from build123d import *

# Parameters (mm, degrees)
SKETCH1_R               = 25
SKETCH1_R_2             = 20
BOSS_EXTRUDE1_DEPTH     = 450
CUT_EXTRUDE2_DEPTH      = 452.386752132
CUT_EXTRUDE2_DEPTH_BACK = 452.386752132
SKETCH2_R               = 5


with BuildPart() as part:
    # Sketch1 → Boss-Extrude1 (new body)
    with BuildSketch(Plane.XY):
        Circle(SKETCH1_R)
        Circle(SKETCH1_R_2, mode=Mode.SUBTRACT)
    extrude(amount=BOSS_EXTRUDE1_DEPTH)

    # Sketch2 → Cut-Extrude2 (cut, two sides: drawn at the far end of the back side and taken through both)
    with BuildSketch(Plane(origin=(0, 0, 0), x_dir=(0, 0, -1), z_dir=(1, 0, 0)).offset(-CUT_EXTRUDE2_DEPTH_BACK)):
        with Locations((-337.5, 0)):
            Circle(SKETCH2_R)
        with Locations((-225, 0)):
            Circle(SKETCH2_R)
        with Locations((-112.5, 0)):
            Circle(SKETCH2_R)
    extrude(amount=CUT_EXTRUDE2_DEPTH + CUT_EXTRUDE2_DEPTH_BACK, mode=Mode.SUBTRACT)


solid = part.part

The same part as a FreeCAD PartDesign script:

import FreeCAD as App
import Part
import Sketcher
from FreeCAD import Vector

doc = App.newDocument("Part")
params = doc.addObject("Spreadsheet::Sheet", "Params")
for row, (alias, value) in enumerate([
    ("sketch1_diameter", "50 mm"),
    ("sketch1_diameter2", "40 mm"),
    ("pad1_length", "450 mm"),
    ("sketch2_diameter", "10 mm"),
], start=1):
    params.set(f"A{row}", alias)
    params.set(f"B{row}", "=" + value)
    params.setAlias(f"B{row}", alias)

body = doc.addObject("PartDesign::Body", "Body")

# Sketch on XY plane
sketch1 = body.newObject("Sketcher::SketchObject", "Sketch")
sketch1.AttachmentSupport = (doc.getObject("XY_Plane"), [""])
sketch1.MapMode = "FlatFace"
sketch1.addGeometry([
    Part.Circle(Vector(0, 0, 0), Vector(0, 0, 1), 25),
    Part.Circle(Vector(0, 0, 0), Vector(0, 0, 1), 20),
], False)
sketch1.addConstraint([
    Sketcher.Constraint("Coincident", 0, 3, -1, 1),
    Sketcher.Constraint("Coincident", 1, 3, -1, 1),
    Sketcher.Constraint("Diameter", 0, 50.0),
    Sketcher.Constraint("Diameter", 1, 40.0),
])
sketch1.setExpression("Constraints[2]", "Params.sketch1_diameter")
sketch1.setExpression("Constraints[3]", "Params.sketch1_diameter2")
pad1 = body.newObject("PartDesign::Pad", "Pad")
pad1.Profile = sketch1
pad1.setExpression("Length", "Params.pad1_length")

# Sketch on YZ plane
sketch2 = body.newObject("Sketcher::SketchObject", "Sketch001")
sketch2.AttachmentSupport = (doc.getObject("YZ_Plane"), [""])
sketch2.MapMode = "FlatFace"
sketch2.addGeometry([
    Part.Circle(Vector(0, 338, 0), Vector(0, 0, 1), 5),
    Part.Circle(Vector(0, 225, 0), Vector(0, 0, 1), 5),
    Part.Circle(Vector(0, 112, 0), Vector(0, 0, 1), 5),
], False)
sketch2.addConstraint([
    Sketcher.Constraint("Equal", 0, 1),
    Sketcher.Constraint("Equal", 1, 2),
    Sketcher.Constraint("PointOnObject", 0, 3, -2),
    Sketcher.Constraint("PointOnObject", 1, 3, -2),
    Sketcher.Constraint("PointOnObject", 2, 3, -2),
    Sketcher.Constraint("Diameter", 0, 10.0),
    Sketcher.Constraint("DistanceY", -1, 1, 1, 3, 225.0),
    Sketcher.Constraint("DistanceY", 2, 3, 0, 3, 225.0),
    Sketcher.Constraint("DistanceY", -1, 1, 0, 3, 337.5),
])
sketch2.setExpression("Constraints[5]", "Params.sketch2_diameter")
pocket1 = body.newObject("PartDesign::Pocket", "Pocket")
pocket1.Profile = sketch2
pocket1.Type = "ThroughAll"
pocket1.Midplane = True

doc.recompute()
